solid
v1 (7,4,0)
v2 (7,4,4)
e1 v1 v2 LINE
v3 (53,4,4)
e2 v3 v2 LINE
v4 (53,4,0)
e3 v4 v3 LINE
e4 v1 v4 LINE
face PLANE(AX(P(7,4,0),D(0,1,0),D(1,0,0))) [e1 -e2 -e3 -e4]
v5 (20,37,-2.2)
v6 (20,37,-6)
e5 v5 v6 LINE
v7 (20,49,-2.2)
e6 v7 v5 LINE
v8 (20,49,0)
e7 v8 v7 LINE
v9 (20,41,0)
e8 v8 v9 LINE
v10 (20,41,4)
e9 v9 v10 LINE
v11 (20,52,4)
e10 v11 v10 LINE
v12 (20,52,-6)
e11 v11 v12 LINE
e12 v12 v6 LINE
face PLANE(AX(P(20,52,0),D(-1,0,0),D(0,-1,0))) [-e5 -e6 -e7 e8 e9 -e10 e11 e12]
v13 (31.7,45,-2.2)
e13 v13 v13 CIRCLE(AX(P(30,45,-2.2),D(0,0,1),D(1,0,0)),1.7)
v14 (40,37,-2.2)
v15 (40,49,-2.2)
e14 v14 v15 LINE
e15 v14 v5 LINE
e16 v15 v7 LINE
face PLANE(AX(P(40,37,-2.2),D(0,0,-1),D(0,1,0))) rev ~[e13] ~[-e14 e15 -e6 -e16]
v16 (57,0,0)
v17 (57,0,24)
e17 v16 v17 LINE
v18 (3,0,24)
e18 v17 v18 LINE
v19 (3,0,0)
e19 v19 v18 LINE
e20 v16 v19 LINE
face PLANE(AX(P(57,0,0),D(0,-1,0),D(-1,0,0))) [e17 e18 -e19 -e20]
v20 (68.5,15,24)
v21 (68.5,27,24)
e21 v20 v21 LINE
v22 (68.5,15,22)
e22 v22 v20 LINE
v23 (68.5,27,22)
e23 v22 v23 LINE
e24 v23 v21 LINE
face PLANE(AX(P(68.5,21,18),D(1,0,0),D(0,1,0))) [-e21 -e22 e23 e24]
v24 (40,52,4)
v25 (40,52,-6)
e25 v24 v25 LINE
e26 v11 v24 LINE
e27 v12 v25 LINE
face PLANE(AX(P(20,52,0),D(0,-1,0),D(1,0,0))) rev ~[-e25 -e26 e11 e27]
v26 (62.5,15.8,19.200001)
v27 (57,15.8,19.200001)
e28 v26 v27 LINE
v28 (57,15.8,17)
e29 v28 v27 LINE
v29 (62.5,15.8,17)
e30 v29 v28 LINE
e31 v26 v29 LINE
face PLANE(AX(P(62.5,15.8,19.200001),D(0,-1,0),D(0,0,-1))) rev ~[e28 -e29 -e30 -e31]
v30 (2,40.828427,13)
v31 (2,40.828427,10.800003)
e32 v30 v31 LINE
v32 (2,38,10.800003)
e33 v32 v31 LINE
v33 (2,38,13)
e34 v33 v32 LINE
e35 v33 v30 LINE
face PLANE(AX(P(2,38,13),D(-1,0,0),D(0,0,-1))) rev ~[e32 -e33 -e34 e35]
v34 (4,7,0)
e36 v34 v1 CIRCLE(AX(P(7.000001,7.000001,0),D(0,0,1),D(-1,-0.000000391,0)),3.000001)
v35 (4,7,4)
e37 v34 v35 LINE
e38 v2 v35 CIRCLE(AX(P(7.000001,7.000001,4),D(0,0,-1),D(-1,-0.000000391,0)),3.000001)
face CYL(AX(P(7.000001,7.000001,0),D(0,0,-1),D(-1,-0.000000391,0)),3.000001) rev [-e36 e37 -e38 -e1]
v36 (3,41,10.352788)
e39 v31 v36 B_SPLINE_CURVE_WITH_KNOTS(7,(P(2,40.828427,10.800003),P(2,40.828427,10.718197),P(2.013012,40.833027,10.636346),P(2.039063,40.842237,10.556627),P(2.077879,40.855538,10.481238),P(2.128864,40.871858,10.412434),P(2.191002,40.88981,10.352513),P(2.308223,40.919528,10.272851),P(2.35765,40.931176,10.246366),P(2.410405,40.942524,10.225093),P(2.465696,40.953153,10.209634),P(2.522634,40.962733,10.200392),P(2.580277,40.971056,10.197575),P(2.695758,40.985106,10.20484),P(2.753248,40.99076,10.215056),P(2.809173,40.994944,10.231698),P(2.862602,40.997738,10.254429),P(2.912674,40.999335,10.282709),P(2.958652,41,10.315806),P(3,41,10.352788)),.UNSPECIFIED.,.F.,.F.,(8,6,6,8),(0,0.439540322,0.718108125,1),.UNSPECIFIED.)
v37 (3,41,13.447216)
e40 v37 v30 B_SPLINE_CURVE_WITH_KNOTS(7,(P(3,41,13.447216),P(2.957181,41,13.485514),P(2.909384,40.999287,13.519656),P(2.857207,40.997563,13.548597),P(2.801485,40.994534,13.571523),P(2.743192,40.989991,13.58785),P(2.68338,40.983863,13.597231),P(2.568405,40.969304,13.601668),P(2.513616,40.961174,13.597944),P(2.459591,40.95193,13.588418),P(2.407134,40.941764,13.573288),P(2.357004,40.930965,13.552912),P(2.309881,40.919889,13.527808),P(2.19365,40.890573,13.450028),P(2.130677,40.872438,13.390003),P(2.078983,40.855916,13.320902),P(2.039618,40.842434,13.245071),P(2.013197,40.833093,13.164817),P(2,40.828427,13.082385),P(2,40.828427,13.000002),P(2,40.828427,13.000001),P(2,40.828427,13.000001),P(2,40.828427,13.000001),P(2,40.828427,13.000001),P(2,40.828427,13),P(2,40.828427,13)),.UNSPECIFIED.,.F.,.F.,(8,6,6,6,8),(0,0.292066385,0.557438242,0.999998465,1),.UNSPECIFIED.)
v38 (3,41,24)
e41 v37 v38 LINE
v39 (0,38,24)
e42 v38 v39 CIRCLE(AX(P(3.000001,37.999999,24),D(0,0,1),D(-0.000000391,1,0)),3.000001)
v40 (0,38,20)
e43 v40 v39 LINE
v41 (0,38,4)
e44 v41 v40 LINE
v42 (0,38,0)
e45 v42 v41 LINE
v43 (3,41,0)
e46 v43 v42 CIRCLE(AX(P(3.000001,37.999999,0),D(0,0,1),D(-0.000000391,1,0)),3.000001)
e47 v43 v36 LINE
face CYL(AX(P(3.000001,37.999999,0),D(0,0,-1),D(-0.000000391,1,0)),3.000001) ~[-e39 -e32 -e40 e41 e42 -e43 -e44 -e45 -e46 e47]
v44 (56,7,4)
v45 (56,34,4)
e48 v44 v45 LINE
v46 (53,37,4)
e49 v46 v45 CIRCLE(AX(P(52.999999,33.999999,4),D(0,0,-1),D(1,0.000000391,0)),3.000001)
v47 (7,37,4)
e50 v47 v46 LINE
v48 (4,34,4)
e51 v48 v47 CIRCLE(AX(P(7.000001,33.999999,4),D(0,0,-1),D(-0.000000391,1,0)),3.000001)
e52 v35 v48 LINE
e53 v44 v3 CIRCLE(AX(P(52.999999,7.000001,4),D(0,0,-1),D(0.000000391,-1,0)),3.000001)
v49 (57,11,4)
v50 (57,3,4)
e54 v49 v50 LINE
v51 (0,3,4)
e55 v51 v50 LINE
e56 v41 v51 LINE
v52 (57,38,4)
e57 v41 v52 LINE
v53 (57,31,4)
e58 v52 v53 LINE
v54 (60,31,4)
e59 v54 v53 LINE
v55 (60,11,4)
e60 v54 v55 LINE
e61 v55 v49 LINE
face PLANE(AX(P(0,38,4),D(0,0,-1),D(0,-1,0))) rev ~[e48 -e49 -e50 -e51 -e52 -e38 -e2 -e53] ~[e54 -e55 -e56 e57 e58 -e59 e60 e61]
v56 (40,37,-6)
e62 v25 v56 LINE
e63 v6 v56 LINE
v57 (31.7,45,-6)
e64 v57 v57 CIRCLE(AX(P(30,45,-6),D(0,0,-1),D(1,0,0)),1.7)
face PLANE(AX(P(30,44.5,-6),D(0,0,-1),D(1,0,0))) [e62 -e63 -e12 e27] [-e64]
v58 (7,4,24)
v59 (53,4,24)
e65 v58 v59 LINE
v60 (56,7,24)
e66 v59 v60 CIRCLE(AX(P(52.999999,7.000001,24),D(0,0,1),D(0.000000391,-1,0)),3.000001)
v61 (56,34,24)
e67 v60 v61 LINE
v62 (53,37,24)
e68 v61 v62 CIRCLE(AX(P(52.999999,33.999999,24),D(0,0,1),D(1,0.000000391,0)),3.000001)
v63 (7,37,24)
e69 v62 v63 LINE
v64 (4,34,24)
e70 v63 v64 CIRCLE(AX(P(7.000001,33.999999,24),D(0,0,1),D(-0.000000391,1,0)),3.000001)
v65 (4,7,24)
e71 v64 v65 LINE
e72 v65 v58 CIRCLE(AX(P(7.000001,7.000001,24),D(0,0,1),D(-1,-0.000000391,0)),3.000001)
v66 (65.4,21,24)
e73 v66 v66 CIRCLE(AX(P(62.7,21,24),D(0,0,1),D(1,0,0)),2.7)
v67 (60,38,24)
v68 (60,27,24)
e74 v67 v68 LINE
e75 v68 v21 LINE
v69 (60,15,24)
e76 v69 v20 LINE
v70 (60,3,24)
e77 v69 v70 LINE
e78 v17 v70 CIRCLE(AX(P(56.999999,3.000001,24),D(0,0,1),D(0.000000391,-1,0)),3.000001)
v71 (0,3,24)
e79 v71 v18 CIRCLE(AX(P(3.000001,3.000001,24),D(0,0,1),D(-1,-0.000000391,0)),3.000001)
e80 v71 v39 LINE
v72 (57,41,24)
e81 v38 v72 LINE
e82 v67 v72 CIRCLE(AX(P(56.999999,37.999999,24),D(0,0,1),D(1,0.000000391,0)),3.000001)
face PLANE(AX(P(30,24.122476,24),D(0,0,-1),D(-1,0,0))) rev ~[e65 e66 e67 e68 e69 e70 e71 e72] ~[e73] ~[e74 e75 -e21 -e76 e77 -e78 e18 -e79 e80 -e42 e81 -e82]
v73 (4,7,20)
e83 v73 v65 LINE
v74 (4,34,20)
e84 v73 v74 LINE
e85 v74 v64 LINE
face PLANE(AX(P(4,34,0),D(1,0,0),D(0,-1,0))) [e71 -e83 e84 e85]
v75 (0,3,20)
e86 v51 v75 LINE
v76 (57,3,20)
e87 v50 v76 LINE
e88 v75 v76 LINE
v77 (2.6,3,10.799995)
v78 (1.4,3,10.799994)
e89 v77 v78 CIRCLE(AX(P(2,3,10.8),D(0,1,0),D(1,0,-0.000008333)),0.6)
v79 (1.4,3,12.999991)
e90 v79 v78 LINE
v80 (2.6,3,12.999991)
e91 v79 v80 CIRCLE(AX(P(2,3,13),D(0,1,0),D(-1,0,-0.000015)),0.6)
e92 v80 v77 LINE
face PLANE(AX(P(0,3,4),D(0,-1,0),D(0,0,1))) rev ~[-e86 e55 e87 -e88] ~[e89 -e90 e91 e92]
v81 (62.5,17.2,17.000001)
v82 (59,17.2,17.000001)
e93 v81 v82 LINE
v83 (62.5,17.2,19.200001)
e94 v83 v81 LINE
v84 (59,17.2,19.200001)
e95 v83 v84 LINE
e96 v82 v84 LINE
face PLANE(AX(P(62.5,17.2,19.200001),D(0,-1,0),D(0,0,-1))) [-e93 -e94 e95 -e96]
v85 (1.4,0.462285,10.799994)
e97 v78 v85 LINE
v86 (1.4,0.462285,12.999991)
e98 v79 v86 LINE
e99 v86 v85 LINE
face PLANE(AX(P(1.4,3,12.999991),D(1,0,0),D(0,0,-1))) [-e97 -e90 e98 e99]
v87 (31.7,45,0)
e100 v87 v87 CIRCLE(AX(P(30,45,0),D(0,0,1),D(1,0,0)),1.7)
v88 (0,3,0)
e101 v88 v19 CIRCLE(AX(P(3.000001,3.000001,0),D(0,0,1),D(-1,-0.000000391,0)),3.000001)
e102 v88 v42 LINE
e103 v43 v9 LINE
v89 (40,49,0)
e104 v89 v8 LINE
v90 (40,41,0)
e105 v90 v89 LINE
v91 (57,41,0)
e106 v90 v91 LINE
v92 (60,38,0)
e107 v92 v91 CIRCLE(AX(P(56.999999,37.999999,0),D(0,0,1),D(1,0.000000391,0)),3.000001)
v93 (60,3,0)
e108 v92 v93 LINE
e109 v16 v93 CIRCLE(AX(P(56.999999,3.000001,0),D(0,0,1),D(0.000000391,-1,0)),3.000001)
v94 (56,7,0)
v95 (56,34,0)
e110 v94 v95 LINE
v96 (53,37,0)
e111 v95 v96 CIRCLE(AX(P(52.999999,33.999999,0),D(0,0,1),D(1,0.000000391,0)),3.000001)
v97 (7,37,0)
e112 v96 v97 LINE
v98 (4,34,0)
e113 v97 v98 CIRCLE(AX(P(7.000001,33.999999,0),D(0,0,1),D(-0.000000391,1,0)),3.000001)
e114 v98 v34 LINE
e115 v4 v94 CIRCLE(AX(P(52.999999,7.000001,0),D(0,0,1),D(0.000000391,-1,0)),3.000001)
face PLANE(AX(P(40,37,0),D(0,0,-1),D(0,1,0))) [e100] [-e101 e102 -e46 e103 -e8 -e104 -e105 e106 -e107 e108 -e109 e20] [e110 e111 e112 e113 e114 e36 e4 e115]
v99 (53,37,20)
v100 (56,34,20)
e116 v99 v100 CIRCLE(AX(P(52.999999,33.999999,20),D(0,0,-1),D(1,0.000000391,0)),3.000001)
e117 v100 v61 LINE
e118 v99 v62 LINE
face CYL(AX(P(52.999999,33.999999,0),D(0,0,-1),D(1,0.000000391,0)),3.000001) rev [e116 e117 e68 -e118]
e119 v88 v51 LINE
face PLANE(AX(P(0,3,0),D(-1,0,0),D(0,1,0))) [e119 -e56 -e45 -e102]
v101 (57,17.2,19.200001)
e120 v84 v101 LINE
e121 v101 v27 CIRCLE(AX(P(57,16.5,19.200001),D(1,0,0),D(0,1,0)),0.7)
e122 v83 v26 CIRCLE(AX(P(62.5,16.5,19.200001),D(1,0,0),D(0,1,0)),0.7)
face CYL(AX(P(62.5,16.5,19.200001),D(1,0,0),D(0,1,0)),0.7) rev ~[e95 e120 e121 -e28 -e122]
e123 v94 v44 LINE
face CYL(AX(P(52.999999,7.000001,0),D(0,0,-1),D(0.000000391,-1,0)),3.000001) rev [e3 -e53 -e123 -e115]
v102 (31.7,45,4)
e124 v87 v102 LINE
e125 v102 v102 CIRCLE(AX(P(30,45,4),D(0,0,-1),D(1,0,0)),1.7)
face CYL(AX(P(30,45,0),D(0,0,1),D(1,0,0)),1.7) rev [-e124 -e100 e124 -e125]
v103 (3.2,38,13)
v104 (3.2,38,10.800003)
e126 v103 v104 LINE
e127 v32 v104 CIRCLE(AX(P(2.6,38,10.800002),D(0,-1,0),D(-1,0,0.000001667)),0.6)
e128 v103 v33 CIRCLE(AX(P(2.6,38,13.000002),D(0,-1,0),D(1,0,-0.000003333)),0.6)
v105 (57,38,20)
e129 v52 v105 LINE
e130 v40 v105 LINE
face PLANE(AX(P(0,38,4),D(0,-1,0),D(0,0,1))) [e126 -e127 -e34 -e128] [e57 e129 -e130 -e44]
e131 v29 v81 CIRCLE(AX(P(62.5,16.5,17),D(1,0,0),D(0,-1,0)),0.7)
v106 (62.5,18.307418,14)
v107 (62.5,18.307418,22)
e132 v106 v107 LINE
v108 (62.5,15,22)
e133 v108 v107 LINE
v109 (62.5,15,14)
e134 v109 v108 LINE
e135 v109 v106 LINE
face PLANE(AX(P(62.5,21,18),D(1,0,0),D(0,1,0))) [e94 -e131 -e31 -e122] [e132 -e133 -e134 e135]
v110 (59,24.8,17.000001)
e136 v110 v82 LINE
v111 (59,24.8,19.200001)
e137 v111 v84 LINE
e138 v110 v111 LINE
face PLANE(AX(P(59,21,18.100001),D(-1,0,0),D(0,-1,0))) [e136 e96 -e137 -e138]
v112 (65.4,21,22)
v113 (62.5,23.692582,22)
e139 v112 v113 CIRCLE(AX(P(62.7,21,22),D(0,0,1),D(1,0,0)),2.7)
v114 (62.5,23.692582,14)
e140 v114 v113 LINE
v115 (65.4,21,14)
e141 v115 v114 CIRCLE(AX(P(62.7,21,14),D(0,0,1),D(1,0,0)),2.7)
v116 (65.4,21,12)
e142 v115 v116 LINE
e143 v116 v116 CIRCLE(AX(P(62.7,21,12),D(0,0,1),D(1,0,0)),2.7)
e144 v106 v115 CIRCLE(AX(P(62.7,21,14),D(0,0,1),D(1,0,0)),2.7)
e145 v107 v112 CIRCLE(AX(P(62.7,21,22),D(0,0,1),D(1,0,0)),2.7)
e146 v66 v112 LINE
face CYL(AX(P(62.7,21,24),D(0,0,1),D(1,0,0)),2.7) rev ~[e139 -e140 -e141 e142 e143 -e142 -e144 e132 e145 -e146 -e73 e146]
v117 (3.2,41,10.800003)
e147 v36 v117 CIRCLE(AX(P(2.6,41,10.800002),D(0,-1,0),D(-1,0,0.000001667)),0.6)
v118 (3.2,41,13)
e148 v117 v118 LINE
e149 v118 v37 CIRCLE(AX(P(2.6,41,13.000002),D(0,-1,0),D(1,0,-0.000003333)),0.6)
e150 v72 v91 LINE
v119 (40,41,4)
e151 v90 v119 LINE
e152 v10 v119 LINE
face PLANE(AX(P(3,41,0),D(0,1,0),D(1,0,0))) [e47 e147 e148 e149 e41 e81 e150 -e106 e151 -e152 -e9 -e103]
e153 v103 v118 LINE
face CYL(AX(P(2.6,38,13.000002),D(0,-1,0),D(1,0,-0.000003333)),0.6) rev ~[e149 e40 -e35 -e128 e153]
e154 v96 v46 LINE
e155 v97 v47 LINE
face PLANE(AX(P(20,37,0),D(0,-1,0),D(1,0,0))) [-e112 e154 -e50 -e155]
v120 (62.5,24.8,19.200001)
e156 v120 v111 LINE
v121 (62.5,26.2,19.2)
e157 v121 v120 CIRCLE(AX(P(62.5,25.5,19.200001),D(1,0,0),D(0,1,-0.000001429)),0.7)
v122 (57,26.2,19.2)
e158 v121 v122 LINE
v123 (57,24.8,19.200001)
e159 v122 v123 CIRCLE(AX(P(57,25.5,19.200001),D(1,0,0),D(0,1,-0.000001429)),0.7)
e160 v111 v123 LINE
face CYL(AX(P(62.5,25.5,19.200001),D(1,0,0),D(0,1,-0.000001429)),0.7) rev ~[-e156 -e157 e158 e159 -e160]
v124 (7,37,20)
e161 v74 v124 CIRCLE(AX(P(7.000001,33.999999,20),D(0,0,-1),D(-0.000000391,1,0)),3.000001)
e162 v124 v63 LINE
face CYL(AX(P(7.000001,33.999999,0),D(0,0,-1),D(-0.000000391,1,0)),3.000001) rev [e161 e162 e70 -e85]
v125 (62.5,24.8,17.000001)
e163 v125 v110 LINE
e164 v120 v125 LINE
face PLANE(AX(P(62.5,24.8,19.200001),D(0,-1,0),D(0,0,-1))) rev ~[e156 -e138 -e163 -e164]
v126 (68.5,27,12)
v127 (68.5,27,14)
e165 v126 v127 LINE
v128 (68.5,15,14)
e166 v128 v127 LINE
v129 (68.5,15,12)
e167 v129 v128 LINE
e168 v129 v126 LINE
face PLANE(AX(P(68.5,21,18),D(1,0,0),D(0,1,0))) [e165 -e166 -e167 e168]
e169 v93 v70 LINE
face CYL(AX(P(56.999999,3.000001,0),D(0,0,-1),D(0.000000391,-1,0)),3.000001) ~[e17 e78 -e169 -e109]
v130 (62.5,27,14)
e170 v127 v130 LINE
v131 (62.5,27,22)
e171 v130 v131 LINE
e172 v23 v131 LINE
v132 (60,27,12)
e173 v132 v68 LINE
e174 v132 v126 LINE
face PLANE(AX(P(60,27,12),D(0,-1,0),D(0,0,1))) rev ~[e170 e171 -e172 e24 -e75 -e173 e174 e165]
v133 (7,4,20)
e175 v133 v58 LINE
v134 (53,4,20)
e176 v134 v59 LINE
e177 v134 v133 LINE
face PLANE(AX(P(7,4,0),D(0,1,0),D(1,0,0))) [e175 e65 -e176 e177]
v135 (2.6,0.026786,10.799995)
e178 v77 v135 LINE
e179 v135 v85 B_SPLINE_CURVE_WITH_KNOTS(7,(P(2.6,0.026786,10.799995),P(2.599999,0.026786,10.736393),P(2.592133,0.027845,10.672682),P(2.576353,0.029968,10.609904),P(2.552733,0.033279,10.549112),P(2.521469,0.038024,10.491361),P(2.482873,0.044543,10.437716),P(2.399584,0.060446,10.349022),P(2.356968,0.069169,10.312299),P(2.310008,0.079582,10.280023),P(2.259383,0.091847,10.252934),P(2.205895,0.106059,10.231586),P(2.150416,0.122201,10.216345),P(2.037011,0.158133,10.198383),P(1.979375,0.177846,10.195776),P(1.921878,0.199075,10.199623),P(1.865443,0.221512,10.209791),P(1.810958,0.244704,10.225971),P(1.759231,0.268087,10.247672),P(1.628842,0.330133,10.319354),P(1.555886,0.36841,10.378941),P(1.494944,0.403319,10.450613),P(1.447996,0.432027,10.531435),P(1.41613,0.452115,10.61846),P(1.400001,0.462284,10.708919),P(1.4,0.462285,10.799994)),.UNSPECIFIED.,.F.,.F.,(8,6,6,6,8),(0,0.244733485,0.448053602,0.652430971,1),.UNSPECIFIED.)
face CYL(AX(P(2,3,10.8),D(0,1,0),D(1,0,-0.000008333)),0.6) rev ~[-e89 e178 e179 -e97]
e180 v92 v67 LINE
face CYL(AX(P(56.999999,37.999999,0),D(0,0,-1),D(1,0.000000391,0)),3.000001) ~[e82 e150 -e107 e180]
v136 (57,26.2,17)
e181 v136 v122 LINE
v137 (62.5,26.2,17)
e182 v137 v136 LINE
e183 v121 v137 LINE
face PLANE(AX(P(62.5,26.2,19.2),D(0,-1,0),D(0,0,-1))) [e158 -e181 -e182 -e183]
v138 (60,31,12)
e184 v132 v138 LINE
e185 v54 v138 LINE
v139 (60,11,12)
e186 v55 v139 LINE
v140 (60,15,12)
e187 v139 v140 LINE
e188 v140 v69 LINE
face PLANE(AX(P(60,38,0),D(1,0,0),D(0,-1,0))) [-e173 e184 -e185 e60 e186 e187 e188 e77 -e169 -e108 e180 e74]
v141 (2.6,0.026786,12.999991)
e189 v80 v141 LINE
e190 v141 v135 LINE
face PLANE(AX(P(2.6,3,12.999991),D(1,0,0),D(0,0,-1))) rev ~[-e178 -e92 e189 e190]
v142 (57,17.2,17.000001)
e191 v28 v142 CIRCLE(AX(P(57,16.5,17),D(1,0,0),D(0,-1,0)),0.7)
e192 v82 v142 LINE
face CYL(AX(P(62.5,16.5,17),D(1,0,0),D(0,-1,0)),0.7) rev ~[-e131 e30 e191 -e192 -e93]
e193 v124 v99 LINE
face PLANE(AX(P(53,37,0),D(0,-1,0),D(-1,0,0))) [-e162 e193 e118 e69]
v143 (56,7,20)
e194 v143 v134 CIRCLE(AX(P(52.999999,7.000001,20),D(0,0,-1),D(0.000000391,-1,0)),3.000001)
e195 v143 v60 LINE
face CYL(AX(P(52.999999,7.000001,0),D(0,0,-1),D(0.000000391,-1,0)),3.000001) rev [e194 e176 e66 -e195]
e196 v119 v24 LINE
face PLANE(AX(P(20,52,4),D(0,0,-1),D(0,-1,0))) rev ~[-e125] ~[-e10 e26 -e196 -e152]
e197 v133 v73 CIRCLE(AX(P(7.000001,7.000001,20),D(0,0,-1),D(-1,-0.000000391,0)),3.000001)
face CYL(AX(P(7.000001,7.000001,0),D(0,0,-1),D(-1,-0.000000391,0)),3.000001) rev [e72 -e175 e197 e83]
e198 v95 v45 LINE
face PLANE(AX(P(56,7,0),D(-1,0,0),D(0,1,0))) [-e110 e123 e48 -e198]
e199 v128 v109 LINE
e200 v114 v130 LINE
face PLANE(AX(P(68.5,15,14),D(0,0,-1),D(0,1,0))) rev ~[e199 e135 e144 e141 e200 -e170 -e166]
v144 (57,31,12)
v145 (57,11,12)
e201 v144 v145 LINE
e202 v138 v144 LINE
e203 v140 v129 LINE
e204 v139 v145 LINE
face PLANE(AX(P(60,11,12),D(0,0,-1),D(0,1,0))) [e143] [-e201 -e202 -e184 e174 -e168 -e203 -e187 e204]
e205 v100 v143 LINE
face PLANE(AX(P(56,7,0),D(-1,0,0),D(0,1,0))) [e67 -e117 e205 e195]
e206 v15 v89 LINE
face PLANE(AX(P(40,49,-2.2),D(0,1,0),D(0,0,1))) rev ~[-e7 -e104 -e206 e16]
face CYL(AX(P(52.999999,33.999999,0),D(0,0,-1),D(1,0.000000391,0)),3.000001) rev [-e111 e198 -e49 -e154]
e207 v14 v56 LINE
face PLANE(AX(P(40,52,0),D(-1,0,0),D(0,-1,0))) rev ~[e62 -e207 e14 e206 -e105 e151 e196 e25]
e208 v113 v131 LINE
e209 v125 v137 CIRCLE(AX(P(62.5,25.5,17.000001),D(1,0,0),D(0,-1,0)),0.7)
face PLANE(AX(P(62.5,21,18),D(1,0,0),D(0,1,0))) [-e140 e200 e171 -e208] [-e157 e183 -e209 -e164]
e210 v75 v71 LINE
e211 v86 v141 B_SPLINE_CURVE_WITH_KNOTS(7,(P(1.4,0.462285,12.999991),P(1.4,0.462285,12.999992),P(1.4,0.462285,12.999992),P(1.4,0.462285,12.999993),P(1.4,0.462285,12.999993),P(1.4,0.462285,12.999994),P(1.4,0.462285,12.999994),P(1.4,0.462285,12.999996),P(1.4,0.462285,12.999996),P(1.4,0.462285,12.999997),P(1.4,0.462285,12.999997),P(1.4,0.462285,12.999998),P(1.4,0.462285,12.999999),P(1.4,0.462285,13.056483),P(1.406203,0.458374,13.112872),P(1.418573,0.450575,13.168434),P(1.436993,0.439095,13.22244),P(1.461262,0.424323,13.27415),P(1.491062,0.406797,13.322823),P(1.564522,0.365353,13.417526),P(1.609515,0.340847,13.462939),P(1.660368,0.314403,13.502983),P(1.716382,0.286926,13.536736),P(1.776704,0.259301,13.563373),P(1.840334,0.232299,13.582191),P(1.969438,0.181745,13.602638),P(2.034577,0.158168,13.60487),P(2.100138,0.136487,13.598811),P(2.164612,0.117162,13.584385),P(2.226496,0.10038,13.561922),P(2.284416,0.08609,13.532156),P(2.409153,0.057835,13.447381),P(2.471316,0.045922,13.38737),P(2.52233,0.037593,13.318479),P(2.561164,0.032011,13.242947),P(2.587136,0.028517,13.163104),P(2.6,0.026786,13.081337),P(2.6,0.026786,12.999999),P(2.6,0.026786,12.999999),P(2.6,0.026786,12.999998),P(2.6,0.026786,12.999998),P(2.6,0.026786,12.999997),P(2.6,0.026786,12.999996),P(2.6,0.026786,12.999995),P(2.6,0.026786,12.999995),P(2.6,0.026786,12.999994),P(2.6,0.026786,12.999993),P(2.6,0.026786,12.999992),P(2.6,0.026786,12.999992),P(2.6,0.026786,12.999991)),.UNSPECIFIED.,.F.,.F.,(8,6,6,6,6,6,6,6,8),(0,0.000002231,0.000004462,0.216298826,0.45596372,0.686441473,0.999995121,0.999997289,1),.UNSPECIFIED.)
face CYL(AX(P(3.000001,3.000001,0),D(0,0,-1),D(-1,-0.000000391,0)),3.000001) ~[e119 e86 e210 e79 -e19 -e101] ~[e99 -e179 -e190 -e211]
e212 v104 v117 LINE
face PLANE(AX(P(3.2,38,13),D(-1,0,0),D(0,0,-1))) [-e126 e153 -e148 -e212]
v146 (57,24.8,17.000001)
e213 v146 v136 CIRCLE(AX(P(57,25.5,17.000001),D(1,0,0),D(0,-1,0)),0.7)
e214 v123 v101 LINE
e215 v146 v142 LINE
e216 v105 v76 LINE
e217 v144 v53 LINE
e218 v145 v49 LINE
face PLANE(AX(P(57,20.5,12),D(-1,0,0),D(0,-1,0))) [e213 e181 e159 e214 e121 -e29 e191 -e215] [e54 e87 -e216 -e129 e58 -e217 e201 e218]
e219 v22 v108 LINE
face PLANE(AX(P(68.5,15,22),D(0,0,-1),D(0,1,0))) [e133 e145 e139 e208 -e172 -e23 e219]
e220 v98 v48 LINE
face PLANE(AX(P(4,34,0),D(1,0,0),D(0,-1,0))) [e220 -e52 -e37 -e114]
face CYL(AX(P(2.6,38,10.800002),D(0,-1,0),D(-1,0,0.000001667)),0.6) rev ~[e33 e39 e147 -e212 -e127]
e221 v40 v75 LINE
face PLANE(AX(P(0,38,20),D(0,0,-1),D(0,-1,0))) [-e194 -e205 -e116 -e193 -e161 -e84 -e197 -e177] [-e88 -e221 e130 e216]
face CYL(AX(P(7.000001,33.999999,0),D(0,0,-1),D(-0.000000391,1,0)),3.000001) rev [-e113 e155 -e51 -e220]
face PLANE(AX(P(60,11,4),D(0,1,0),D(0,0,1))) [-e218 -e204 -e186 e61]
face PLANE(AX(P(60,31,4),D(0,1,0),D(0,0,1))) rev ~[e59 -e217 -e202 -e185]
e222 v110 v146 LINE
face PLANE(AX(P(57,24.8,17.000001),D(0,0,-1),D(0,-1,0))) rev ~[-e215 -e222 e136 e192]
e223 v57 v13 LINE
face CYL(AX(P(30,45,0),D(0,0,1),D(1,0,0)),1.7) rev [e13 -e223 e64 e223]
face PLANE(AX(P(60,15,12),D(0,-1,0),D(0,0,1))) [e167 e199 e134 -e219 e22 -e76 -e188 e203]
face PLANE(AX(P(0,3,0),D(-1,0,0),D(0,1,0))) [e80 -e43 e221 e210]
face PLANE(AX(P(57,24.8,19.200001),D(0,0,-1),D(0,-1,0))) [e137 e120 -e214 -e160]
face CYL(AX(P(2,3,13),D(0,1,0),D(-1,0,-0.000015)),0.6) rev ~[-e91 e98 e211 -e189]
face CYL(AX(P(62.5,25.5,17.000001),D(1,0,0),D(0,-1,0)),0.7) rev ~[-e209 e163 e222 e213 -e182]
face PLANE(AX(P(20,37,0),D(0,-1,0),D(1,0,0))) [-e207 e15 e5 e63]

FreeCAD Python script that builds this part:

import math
import FreeCAD as App
import Part
import Sketcher


def add_polygon(sketch, points):
    """Adds a closed chain of lines whose ends are joined by coincident constraints."""
    first, n = sketch.GeometryCount, len(points)
    for a, b in zip(points, points[1:] + points[:1]):
        sketch.addGeometry(Part.LineSegment(App.Vector(*a, 0), App.Vector(*b, 0)), False)
    for i in range(n):
        sketch.addConstraint(Sketcher.Constraint("Coincident", first + i, 2, first + (i + 1) % n, 1))

doc = App.newDocument("Part")
body = doc.addObject("PartDesign::Body", "Body")

# Sketch on XY plane
sketch1 = body.newObject("Sketcher::SketchObject", "Sketch")
sketch1.AttachmentSupport = (doc.getObject("XY_Plane"), [""])
sketch1.MapMode = "FlatFace"
sketch1.addGeometry(Part.LineSegment(App.Vector(20, 41, 0), App.Vector(3, 41, 0)), False)
sketch1.addGeometry(Part.ArcOfCircle(Part.Circle(App.Vector(3, 38, 0), App.Vector(0, 0, 1), 3), math.radians(90), math.radians(180)), False)
sketch1.addGeometry(Part.LineSegment(App.Vector(0, 38, 0), App.Vector(0, 3, 0)), False)
sketch1.addGeometry(Part.ArcOfCircle(Part.Circle(App.Vector(3, 3, 0), App.Vector(0, 0, 1), 3), math.radians(-180), math.radians(-90)), False)
sketch1.addGeometry(Part.LineSegment(App.Vector(3, 0, 0), App.Vector(57, 0, 0)), False)
sketch1.addGeometry(Part.ArcOfCircle(Part.Circle(App.Vector(57, 3, 0), App.Vector(0, 0, 1), 3), math.radians(-90), math.radians(0)), False)
sketch1.addGeometry(Part.LineSegment(App.Vector(60, 3, 0), App.Vector(60, 38, 0)), False)
sketch1.addGeometry(Part.ArcOfCircle(Part.Circle(App.Vector(57, 38, 0), App.Vector(0, 0, 1), 3), math.radians(0), math.radians(90)), False)
sketch1.addGeometry(Part.LineSegment(App.Vector(57, 41, 0), App.Vector(40, 41, 0)), False)
sketch1.addGeometry(Part.LineSegment(App.Vector(40, 41, 0), App.Vector(40, 52, 0)), False)
sketch1.addGeometry(Part.LineSegment(App.Vector(40, 52, 0), App.Vector(20, 52, 0)), False)
sketch1.addGeometry(Part.LineSegment(App.Vector(20, 52, 0), App.Vector(20, 41, 0)), False)
sketch1.addGeometry(Part.ArcOfCircle(Part.Circle(App.Vector(7, 7, 0), App.Vector(0, 0, 1), 3), math.radians(-180), math.radians(-90)), False)
sketch1.addGeometry(Part.LineSegment(App.Vector(4, 7, 0), App.Vector(4, 34, 0)), False)
sketch1.addGeometry(Part.ArcOfCircle(Part.Circle(App.Vector(7, 34, 0), App.Vector(0, 0, 1), 3), math.radians(90), math.radians(180)), False)
sketch1.addGeometry(Part.LineSegment(App.Vector(7, 37, 0), App.Vector(53, 37, 0)), False)
sketch1.addGeometry(Part.ArcOfCircle(Part.Circle(App.Vector(53, 34, 0), App.Vector(0, 0, 1), 3), math.radians(0), math.radians(90)), False)
sketch1.addGeometry(Part.LineSegment(App.Vector(56, 34, 0), App.Vector(56, 7, 0)), False)
sketch1.addGeometry(Part.ArcOfCircle(Part.Circle(App.Vector(53, 7, 0), App.Vector(0, 0, 1), 3), math.radians(-90), math.radians(0)), False)
sketch1.addGeometry(Part.LineSegment(App.Vector(53, 4, 0), App.Vector(7, 4, 0)), False)
sketch1.addGeometry(Part.Circle(App.Vector(30, 45, 0), App.Vector(0, 0, 1), 1.7), False)
sketch1.addConstraint(Sketcher.Constraint("Tangent", 0, 2, 1, 1))
sketch1.addConstraint(Sketcher.Constraint("Tangent", 1, 2, 2, 1))
sketch1.addConstraint(Sketcher.Constraint("Tangent", 2, 2, 3, 1))
sketch1.addConstraint(Sketcher.Constraint("Tangent", 3, 2, 4, 1))
sketch1.addConstraint(Sketcher.Constraint("Tangent", 4, 2, 5, 1))
sketch1.addConstraint(Sketcher.Constraint("Tangent", 5, 2, 6, 1))
sketch1.addConstraint(Sketcher.Constraint("Tangent", 6, 2, 7, 1))
sketch1.addConstraint(Sketcher.Constraint("Tangent", 7, 2, 8, 1))
sketch1.addConstraint(Sketcher.Constraint("Coincident", 8, 2, 9, 1))
sketch1.addConstraint(Sketcher.Constraint("Coincident", 9, 2, 10, 1))
sketch1.addConstraint(Sketcher.Constraint("Coincident", 10, 2, 11, 1))
sketch1.addConstraint(Sketcher.Constraint("Coincident", 11, 2, 0, 1))
sketch1.addConstraint(Sketcher.Constraint("Tangent", 12, 1, 13, 1))
sketch1.addConstraint(Sketcher.Constraint("Tangent", 13, 2, 14, 2))
sketch1.addConstraint(Sketcher.Constraint("Tangent", 14, 1, 15, 1))
sketch1.addConstraint(Sketcher.Constraint("Tangent", 15, 2, 16, 2))
sketch1.addConstraint(Sketcher.Constraint("Tangent", 16, 1, 17, 1))
sketch1.addConstraint(Sketcher.Constraint("Tangent", 17, 2, 18, 2))
sketch1.addConstraint(Sketcher.Constraint("Tangent", 18, 1, 19, 1))
sketch1.addConstraint(Sketcher.Constraint("Tangent", 19, 2, 12, 2))
sketch1.addConstraint(Sketcher.Constraint("Horizontal", 0))
sketch1.addConstraint(Sketcher.Constraint("Vertical", 2))
sketch1.addConstraint(Sketcher.Constraint("Horizontal", 4))
sketch1.addConstraint(Sketcher.Constraint("Vertical", 6))
sketch1.addConstraint(Sketcher.Constraint("Horizontal", 8))
sketch1.addConstraint(Sketcher.Constraint("Vertical", 9))
sketch1.addConstraint(Sketcher.Constraint("Horizontal", 10))
sketch1.addConstraint(Sketcher.Constraint("Vertical", 11))
sketch1.addConstraint(Sketcher.Constraint("Vertical", 13))
sketch1.addConstraint(Sketcher.Constraint("Horizontal", 15))
sketch1.addConstraint(Sketcher.Constraint("Vertical", 17))
sketch1.addConstraint(Sketcher.Constraint("Horizontal", 19))
sketch1.addConstraint(Sketcher.Constraint("Equal", 1, 3))
sketch1.addConstraint(Sketcher.Constraint("Equal", 3, 5))
sketch1.addConstraint(Sketcher.Constraint("Equal", 5, 7))
sketch1.addConstraint(Sketcher.Constraint("Equal", 7, 12))
sketch1.addConstraint(Sketcher.Constraint("Equal", 12, 14))
sketch1.addConstraint(Sketcher.Constraint("Equal", 14, 16))
sketch1.addConstraint(Sketcher.Constraint("Equal", 16, 18))
sketch1.addConstraint(Sketcher.Constraint("PointOnObject", 1, 2, -2))
sketch1.addConstraint(Sketcher.Constraint("PointOnObject", 3, 2, -1))
sketch1.addConstraint(Sketcher.Constraint("Horizontal", 1, 3, 7, 3))
sketch1.addConstraint(Sketcher.Constraint("Equal", 0, 8))
sketch1.addConstraint(Sketcher.Constraint("Radius", 1, 3.000001))
sketch1.addConstraint(Sketcher.Constraint("Diameter", 20, 3.4))
sketch1.addConstraint(Sketcher.Constraint("DistanceX", 0, 2, 0, 1, 17.0))
sketch1.addConstraint(Sketcher.Constraint("DistanceX", 4, 1, 4, 2, 54.0))
sketch1.addConstraint(Sketcher.Constraint("DistanceX", 15, 1, 15, 2, 46.0))
sketch1.addConstraint(Sketcher.Constraint("DistanceY", 2, 2, 2, 1, 35.0))
sketch1.addConstraint(Sketcher.Constraint("DistanceY", 9, 1, 9, 2, 11.0))
sketch1.addConstraint(Sketcher.Constraint("DistanceY", 13, 1, 13, 2, 27.0))
sketch1.addConstraint(Sketcher.Constraint("DistanceX", -1, 1, 12, 3, 7.000001))
sketch1.addConstraint(Sketcher.Constraint("DistanceY", -1, 1, 12, 3, 7.000001))
sketch1.addConstraint(Sketcher.Constraint("DistanceX", -1, 1, 20, 3, 30.0))
sketch1.addConstraint(Sketcher.Constraint("DistanceY", -1, 1, 20, 3, 45.0))
pad1 = body.newObject("PartDesign::Pad", "Pad")
pad1.Profile = sketch1
pad1.Length = 24

# Sketch on YZ plane
sketch2 = body.newObject("Sketcher::SketchObject", "Sketch001")
sketch2.AttachmentSupport = (doc.getObject("YZ_Plane"), [""])
sketch2.MapMode = "FlatFace"
add_polygon(sketch2, [(38, 20), (38, 4), (3, 4), (3, 20)])  # lines 0-3
sketch2.addConstraint(Sketcher.Constraint("Vertical", 0))
sketch2.addConstraint(Sketcher.Constraint("Horizontal", 1))
sketch2.addConstraint(Sketcher.Constraint("Vertical", 2))
sketch2.addConstraint(Sketcher.Constraint("Horizontal", 3))
sketch2.addConstraint(Sketcher.Constraint("DistanceX", 1, 2, 1, 1, 35.0))
sketch2.addConstraint(Sketcher.Constraint("DistanceY", 0, 2, 0, 1, 16.0))
sketch2.addConstraint(Sketcher.Constraint("DistanceX", -1, 1, 0, 2, 38.0))
sketch2.addConstraint(Sketcher.Constraint("DistanceY", -1, 1, 0, 2, 4.0))
pocket1 = body.newObject("PartDesign::Pocket", "Pocket")
pocket1.Profile = sketch2
pocket1.Length = 57
pocket1.Reversed = True

# Sketch on YZ plane
sketch3 = body.newObject("Sketcher::SketchObject", "Sketch002")
sketch3.AttachmentSupport = (doc.getObject("YZ_Plane"), [""])
sketch3.MapMode = "FlatFace"
sketch3.AttachmentOffset = App.Placement(App.Vector(0, 0, 60), App.Rotation())
add_polygon(sketch3, [(11, 12), (11, 4), (31, 4), (31, 12)])  # lines 0-3
sketch3.addConstraint(Sketcher.Constraint("Vertical", 0))
sketch3.addConstraint(Sketcher.Constraint("Horizontal", 1))
sketch3.addConstraint(Sketcher.Constraint("Vertical", 2))
sketch3.addConstraint(Sketcher.Constraint("Horizontal", 3))
sketch3.addConstraint(Sketcher.Constraint("DistanceX", 1, 1, 1, 2, 20.0))
sketch3.addConstraint(Sketcher.Constraint("DistanceY", 0, 2, 0, 1, 8.0))
sketch3.addConstraint(Sketcher.Constraint("DistanceX", -1, 1, 0, 2, 11.0))
sketch3.addConstraint(Sketcher.Constraint("DistanceY", -1, 1, 0, 2, 4.0))
pocket2 = body.newObject("PartDesign::Pocket", "Pocket001")
pocket2.Profile = sketch3
pocket2.Length = 5

# Sketch on YZ plane
sketch4 = body.newObject("Sketcher::SketchObject", "Sketch003")
sketch4.AttachmentSupport = (doc.getObject("YZ_Plane"), [""])
sketch4.MapMode = "FlatFace"
sketch4.AttachmentOffset = App.Placement(App.Vector(0, 0, 20), App.Rotation())
add_polygon(sketch4, [(52, 24), (52, 4), (41, 4), (41, 24)])  # lines 0-3
sketch4.addConstraint(Sketcher.Constraint("Vertical", 0))
sketch4.addConstraint(Sketcher.Constraint("Horizontal", 1))
sketch4.addConstraint(Sketcher.Constraint("Vertical", 2))
sketch4.addConstraint(Sketcher.Constraint("Horizontal", 3))
sketch4.addConstraint(Sketcher.Constraint("DistanceX", 1, 2, 1, 1, 11.0))
sketch4.addConstraint(Sketcher.Constraint("DistanceY", 0, 2, 0, 1, 20.0))
sketch4.addConstraint(Sketcher.Constraint("DistanceX", -1, 1, 0, 2, 52.0))
sketch4.addConstraint(Sketcher.Constraint("DistanceY", -1, 1, 0, 2, 4.0))
pocket3 = body.newObject("PartDesign::Pocket", "Pocket002")
pocket3.Profile = sketch4
pocket3.Type = "ThroughAll"
pocket3.Reversed = True

# Sketch on XY plane
sketch5 = body.newObject("Sketcher::SketchObject", "Sketch004")
sketch5.AttachmentSupport = (doc.getObject("XY_Plane"), [""])
sketch5.MapMode = "FlatFace"
add_polygon(sketch5, [(20, 37), (20, 52), (40, 52), (40, 37)])  # lines 0-3
sketch5.addGeometry(Part.Circle(App.Vector(30, 45, 0), App.Vector(0, 0, 1), 1.7), False)  # 4
sketch5.addConstraint(Sketcher.Constraint("Vertical", 0))
sketch5.addConstraint(Sketcher.Constraint("Horizontal", 1))
sketch5.addConstraint(Sketcher.Constraint("Vertical", 2))
sketch5.addConstraint(Sketcher.Constraint("Horizontal", 3))
sketch5.addConstraint(Sketcher.Constraint("Diameter", 4, 3.4))
sketch5.addConstraint(Sketcher.Constraint("DistanceX", 1, 1, 1, 2, 20.0))
sketch5.addConstraint(Sketcher.Constraint("DistanceY", 0, 1, 0, 2, 15.0))
sketch5.addConstraint(Sketcher.Constraint("DistanceX", -1, 1, 4, 3, 30.0))
sketch5.addConstraint(Sketcher.Constraint("DistanceY", -1, 1, 4, 3, 45.0))
sketch5.addConstraint(Sketcher.Constraint("DistanceX", -1, 1, 0, 2, 20.0))
sketch5.addConstraint(Sketcher.Constraint("DistanceY", -1, 1, 0, 2, 52.0))
pad2 = body.newObject("PartDesign::Pad", "Pad001")
pad2.Profile = sketch5
pad2.Length = 6
pad2.Reversed = True

# Sketch on YZ plane
sketch6 = body.newObject("Sketcher::SketchObject", "Sketch005")
sketch6.AttachmentSupport = (doc.getObject("YZ_Plane"), [""])
sketch6.MapMode = "FlatFace"
sketch6.AttachmentOffset = App.Placement(App.Vector(0, 0, 40), App.Rotation())
add_polygon(sketch6, [(37, 0), (37, -2.2), (49, -2.2), (49, 0)])  # lines 0-3
sketch6.addConstraint(Sketcher.Constraint("Vertical", 0))
sketch6.addConstraint(Sketcher.Constraint("Horizontal", 1))
sketch6.addConstraint(Sketcher.Constraint("Vertical", 2))
sketch6.addConstraint(Sketcher.Constraint("Horizontal", 3))
sketch6.addConstraint(Sketcher.Constraint("PointOnObject", 2, 2, -1))
sketch6.addConstraint(Sketcher.Constraint("DistanceX", 1, 1, 1, 2, 12.0))
sketch6.addConstraint(Sketcher.Constraint("DistanceY", 0, 2, 0, 1, 2.2))
sketch6.addConstraint(Sketcher.Constraint("DistanceX", -1, 1, 0, 2, 37.0))
pocket4 = body.newObject("PartDesign::Pocket", "Pocket003")
pocket4.Profile = sketch6
pocket4.Type = "ThroughAll"

# Sketch on YZ plane
sketch7 = body.newObject("Sketcher::SketchObject", "Sketch006")
sketch7.AttachmentSupport = (doc.getObject("YZ_Plane"), [""])
sketch7.MapMode = "FlatFace"
sketch7.AttachmentOffset = App.Placement(App.Vector(0, 0, 60), App.Rotation())
add_polygon(sketch7, [(15, 24), (15, 12), (27, 12), (27, 24)])  # lines 0-3
sketch7.addConstraint(Sketcher.Constraint("Vertical", 0))
sketch7.addConstraint(Sketcher.Constraint("Horizontal", 1))
sketch7.addConstraint(Sketcher.Constraint("Vertical", 2))
sketch7.addConstraint(Sketcher.Constraint("Horizontal", 3))
sketch7.addConstraint(Sketcher.Constraint("Equal", 3, 0))
sketch7.addConstraint(Sketcher.Constraint("DistanceX", 1, 1, 1, 2, 12.0))
sketch7.addConstraint(Sketcher.Constraint("DistanceX", -1, 1, 0, 2, 15.0))
sketch7.addConstraint(Sketcher.Constraint("DistanceY", -1, 1, 0, 2, 12.0))
pad3 = body.newObject("PartDesign::Pad", "Pad002")
pad3.Profile = sketch7
pad3.Length = 8.5

# Sketch on XY plane
sketch8 = body.newObject("Sketcher::SketchObject", "Sketch007")
sketch8.AttachmentSupport = (doc.getObject("XY_Plane"), [""])
sketch8.MapMode = "FlatFace"
sketch8.AttachmentOffset = App.Placement(App.Vector(0, 0, 24), App.Rotation())
sketch8.addGeometry(Part.Circle(App.Vector(62.7, 21, 0), App.Vector(0, 0, 1), 2.7), False)
sketch8.addConstraint(Sketcher.Constraint("Diameter", 0, 5.4))
sketch8.addConstraint(Sketcher.Constraint("DistanceY", -1, 1, 0, 3, 21.0))
sketch8.addConstraint(Sketcher.Constraint("DistanceX", -1, 1, 0, 3, 62.7))
pocket5 = body.newObject("PartDesign::Pocket", "Pocket004")
pocket5.Profile = sketch8
pocket5.Type = "ThroughAll"

# Sketch on YZ plane
sketch9 = body.newObject("Sketcher::SketchObject", "Sketch008")
sketch9.AttachmentSupport = (doc.getObject("YZ_Plane"), [""])
sketch9.MapMode = "FlatFace"
sketch9.AttachmentOffset = App.Placement(App.Vector(0, 0, 68.5), App.Rotation())
add_polygon(sketch9, [(15, 22), (15, 14), (27, 14), (27, 22)])  # lines 0-3
sketch9.addConstraint(Sketcher.Constraint("Vertical", 0))
sketch9.addConstraint(Sketcher.Constraint("Horizontal", 1))
sketch9.addConstraint(Sketcher.Constraint("Vertical", 2))
sketch9.addConstraint(Sketcher.Constraint("Horizontal", 3))
sketch9.addConstraint(Sketcher.Constraint("DistanceX", 1, 1, 1, 2, 12.0))
sketch9.addConstraint(Sketcher.Constraint("DistanceY", 0, 2, 0, 1, 8.0))
sketch9.addConstraint(Sketcher.Constraint("DistanceX", -1, 1, 0, 2, 15.0))
sketch9.addConstraint(Sketcher.Constraint("DistanceY", -1, 1, 0, 2, 14.0))
pocket6 = body.newObject("PartDesign::Pocket", "Pocket005")
pocket6.Profile = sketch9
pocket6.Length = 6

# Sketch on YZ plane
sketch10 = body.newObject("Sketcher::SketchObject", "Sketch009")
sketch10.AttachmentSupport = (doc.getObject("YZ_Plane"), [""])
sketch10.MapMode = "FlatFace"
sketch10.AttachmentOffset = App.Placement(App.Vector(0, 0, 62.5), App.Rotation())
sketch10.addGeometry(Part.ArcOfCircle(Part.Circle(App.Vector(16.5, 19.2, 0), App.Vector(0, 0, 1), 0.7), math.radians(0), math.radians(180)), False)
sketch10.addGeometry(Part.LineSegment(App.Vector(15.8, 19.2, 0), App.Vector(15.8, 17, 0)), False)
sketch10.addGeometry(Part.ArcOfCircle(Part.Circle(App.Vector(16.5, 17, 0), App.Vector(0, 0, 1), 0.7), math.radians(180), math.radians(360)), False)
sketch10.addGeometry(Part.LineSegment(App.Vector(17.2, 17, 0), App.Vector(17.2, 19.2, 0)), False)
sketch10.addGeometry(Part.ArcOfCircle(Part.Circle(App.Vector(25.5, 19.2, 0), App.Vector(0, 0, 1), 0.7), math.radians(0), math.radians(180)), False)
sketch10.addGeometry(Part.LineSegment(App.Vector(24.8, 19.2, 0), App.Vector(24.8, 17, 0)), False)
sketch10.addGeometry(Part.ArcOfCircle(Part.Circle(App.Vector(25.5, 17, 0), App.Vector(0, 0, 1), 0.7), math.radians(180), math.radians(360)), False)
sketch10.addGeometry(Part.LineSegment(App.Vector(26.2, 17, 0), App.Vector(26.2, 19.2, 0)), False)
sketch10.addConstraint(Sketcher.Constraint("Tangent", 0, 2, 1, 1))
sketch10.addConstraint(Sketcher.Constraint("Tangent", 1, 2, 2, 1))
sketch10.addConstraint(Sketcher.Constraint("Tangent", 2, 2, 3, 1))
sketch10.addConstraint(Sketcher.Constraint("Tangent", 3, 2, 0, 1))
sketch10.addConstraint(Sketcher.Constraint("Tangent", 4, 2, 5, 1))
sketch10.addConstraint(Sketcher.Constraint("Tangent", 5, 2, 6, 1))
sketch10.addConstraint(Sketcher.Constraint("Tangent", 6, 2, 7, 1))
sketch10.addConstraint(Sketcher.Constraint("Tangent", 7, 2, 4, 1))
sketch10.addConstraint(Sketcher.Constraint("Vertical", 1))
sketch10.addConstraint(Sketcher.Constraint("Vertical", 3))
sketch10.addConstraint(Sketcher.Constraint("Vertical", 5))
sketch10.addConstraint(Sketcher.Constraint("Vertical", 7))
sketch10.addConstraint(Sketcher.Constraint("Equal", 2, 4))
sketch10.addConstraint(Sketcher.Constraint("Horizontal", 0, 3, 4, 3))
sketch10.addConstraint(Sketcher.Constraint("Horizontal", 2, 3, 6, 3))
sketch10.addConstraint(Sketcher.Constraint("Radius", 0, 0.7))
sketch10.addConstraint(Sketcher.Constraint("DistanceY", 1, 2, 1, 1, 2.200001))
sketch10.addConstraint(Sketcher.Constraint("DistanceY", -1, 1, 2, 3, 17.0))
sketch10.addConstraint(Sketcher.Constraint("DistanceX", 0, 3, 4, 3, 9.0))
sketch10.addConstraint(Sketcher.Constraint("DistanceX", -1, 1, 0, 3, 16.5))
pocket7 = body.newObject("PartDesign::Pocket", "Pocket006")
pocket7.Profile = sketch10
pocket7.Length = 10

# Sketch on YZ plane
sketch11 = body.newObject("Sketcher::SketchObject", "Sketch010")
sketch11.AttachmentSupport = (doc.getObject("YZ_Plane"), [""])
sketch11.MapMode = "FlatFace"
sketch11.AttachmentOffset = App.Placement(App.Vector(0, 0, 57), App.Rotation())
add_polygon(sketch11, [(24.8, 19.2), (24.8, 17), (17.2, 17), (17.2, 19.2)])  # lines 0-3
sketch11.addConstraint(Sketcher.Constraint("Vertical", 0))
sketch11.addConstraint(Sketcher.Constraint("Horizontal", 1))
sketch11.addConstraint(Sketcher.Constraint("Vertical", 2))
sketch11.addConstraint(Sketcher.Constraint("Horizontal", 3))
sketch11.addConstraint(Sketcher.Constraint("DistanceX", 1, 2, 1, 1, 7.6))
sketch11.addConstraint(Sketcher.Constraint("DistanceY", 0, 2, 0, 1, 2.2))
sketch11.addConstraint(Sketcher.Constraint("DistanceY", -1, 1, 0, 2, 17.000001))
sketch11.addConstraint(Sketcher.Constraint("DistanceX", -1, 1, 0, 2, 24.8))
pocket8 = body.newObject("PartDesign::Pocket", "Pocket007")
pocket8.Profile = sketch11
pocket8.Length = 2
pocket8.Reversed = True

# Sketch on XZ plane
sketch12 = body.newObject("Sketcher::SketchObject", "Sketch011")
sketch12.AttachmentSupport = (doc.getObject("XZ_Plane"), [""])
sketch12.MapMode = "FlatFace"
sketch12.AttachmentOffset = App.Placement(App.Vector(0, 0, -3), App.Rotation())
sketch12.addGeometry(Part.ArcOfCircle(Part.Circle(App.Vector(2, 13, 0), App.Vector(0, 0, 1), 0.6), math.radians(0), math.radians(180)), False)
sketch12.addGeometry(Part.LineSegment(App.Vector(2.6, 13, 0), App.Vector(2.6, 10.8, 0)), False)
sketch12.addGeometry(Part.ArcOfCircle(Part.Circle(App.Vector(2, 10.8, 0), App.Vector(0, 0, 1), 0.6), math.radians(-180), math.radians(0)), False)
sketch12.addGeometry(Part.LineSegment(App.Vector(1.4, 10.8, 0), App.Vector(1.4, 13, 0)), False)
sketch12.addConstraint(Sketcher.Constraint("Coincident", 0, 1, 1, 1))
sketch12.addConstraint(Sketcher.Constraint("Coincident", 1, 2, 2, 2))
sketch12.addConstraint(Sketcher.Constraint("Coincident", 2, 1, 3, 1))
sketch12.addConstraint(Sketcher.Constraint("Coincident", 3, 2, 0, 2))
sketch12.addConstraint(Sketcher.Constraint("Vertical", 1))
sketch12.addConstraint(Sketcher.Constraint("Vertical", 3))
sketch12.addConstraint(Sketcher.Constraint("Horizontal", 1, 2, 2, 1))
sketch12.addConstraint(Sketcher.Constraint("Horizontal", 0, 1, 3, 2))
sketch12.addConstraint(Sketcher.Constraint("Radius", 0, 0.6))
sketch12.addConstraint(Sketcher.Constraint("DistanceX", -1, 1, 0, 3, 2.0))
sketch12.addConstraint(Sketcher.Constraint("DistanceY", -1, 1, 0, 3, 13.0))
sketch12.addConstraint(Sketcher.Constraint("DistanceY", -1, 1, 2, 3, 10.8))
sketch12.addConstraint(Sketcher.Constraint("DistanceY", 1, 2, 1, 1, 2.199996))
sketch12.addConstraint(Sketcher.Constraint("DistanceY", -1, 1, 0, 1, 12.999991))
pocket9 = body.newObject("PartDesign::Pocket", "Pocket008")
pocket9.Profile = sketch12
pocket9.Type = "ThroughAll"
pocket9.Reversed = True

# Sketch on XZ plane
sketch13 = body.newObject("Sketcher::SketchObject", "Sketch012")
sketch13.AttachmentSupport = (doc.getObject("XZ_Plane"), [""])
sketch13.MapMode = "FlatFace"
sketch13.AttachmentOffset = App.Placement(App.Vector(0, 0, -38), App.Rotation())
sketch13.addGeometry(Part.ArcOfCircle(Part.Circle(App.Vector(2.6, 13, 0), App.Vector(0, 0, 1), 0.6), math.radians(0), math.radians(180)), False)
sketch13.addGeometry(Part.LineSegment(App.Vector(2, 13, 0), App.Vector(2, 10.8, 0)), False)
sketch13.addGeometry(Part.ArcOfCircle(Part.Circle(App.Vector(2.6, 10.8, 0), App.Vector(0, 0, 1), 0.6), math.radians(180), math.radians(360)), False)
sketch13.addGeometry(Part.LineSegment(App.Vector(3.2, 10.8, 0), App.Vector(3.2, 13, 0)), False)
sketch13.addConstraint(Sketcher.Constraint("Coincident", 0, 2, 1, 1))
sketch13.addConstraint(Sketcher.Constraint("Tangent", 1, 2, 2, 1))
sketch13.addConstraint(Sketcher.Constraint("Tangent", 2, 2, 3, 1))
sketch13.addConstraint(Sketcher.Constraint("Coincident", 3, 2, 0, 1))
sketch13.addConstraint(Sketcher.Constraint("Vertical", 1))
sketch13.addConstraint(Sketcher.Constraint("Vertical", 3))
sketch13.addConstraint(Sketcher.Constraint("Horizontal", 0, 2, 3, 2))
sketch13.addConstraint(Sketcher.Constraint("Radius", 0, 0.6))
sketch13.addConstraint(Sketcher.Constraint("DistanceX", -1, 1, 0, 2, 2.0))
sketch13.addConstraint(Sketcher.Constraint("DistanceY", -1, 1, 0, 2, 13.0))
sketch13.addConstraint(Sketcher.Constraint("DistanceY", -1, 1, 2, 3, 10.800002))
sketch13.addConstraint(Sketcher.Constraint("DistanceY", 2, 3, 0, 3, 2.2))
pocket10 = body.newObject("PartDesign::Pocket", "Pocket009")
pocket10.Profile = sketch13
pocket10.Length = 5

doc.recompute()
